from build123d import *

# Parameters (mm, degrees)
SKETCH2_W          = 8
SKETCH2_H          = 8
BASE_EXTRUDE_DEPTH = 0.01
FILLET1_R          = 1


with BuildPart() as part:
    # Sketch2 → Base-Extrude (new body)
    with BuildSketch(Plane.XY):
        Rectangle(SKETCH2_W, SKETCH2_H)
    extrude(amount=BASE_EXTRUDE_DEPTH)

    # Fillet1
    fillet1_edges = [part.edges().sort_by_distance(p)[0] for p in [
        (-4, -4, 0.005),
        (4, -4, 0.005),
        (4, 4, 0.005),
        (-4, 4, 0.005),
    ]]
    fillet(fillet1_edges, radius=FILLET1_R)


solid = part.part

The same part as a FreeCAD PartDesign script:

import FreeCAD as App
import Part
import Sketcher

V = App.Vector
Q = App.Units.Quantity


def edges_at(feature, points):
    """Names of the edges that pass closest to the given points."""
    edges = feature.Shape.Edges
    near = lambda p: min(range(len(edges)), key=lambda i: edges[i].distToShape(Part.Vertex(*p))[0])
    return sorted({f"Edge{near(p) + 1}" for p in points})


def add_polygon(sketch, points):
    """Adds a closed chain of lines whose ends are joined by coincident constraints."""
    first, n = sketch.GeometryCount, len(points)
    for a, b in zip(points, points[1:] + points[:1]):
        sketch.addGeometry(Part.LineSegment(App.Vector(*a, 0), App.Vector(*b, 0)), False)
    for i in range(n):
        sketch.addConstraint(Sketcher.Constraint("Coincident", first + i, 2, first + (i + 1) % n, 1))

doc = App.newDocument("Part")
body = doc.addObject("PartDesign::Body", "Body")

# Sketch on XY plane
sketch1 = body.newObject("Sketcher::SketchObject", "Sketch")
sketch1.AttachmentSupport = (doc.getObject("XY_Plane"), [""])
sketch1.MapMode = "FlatFace"
add_polygon(sketch1, [(-4, 4), (-4, -4), (4, -4), (4, 4)])  # lines 0-3
sketch1.addConstraint([
    Sketcher.Constraint("Vertical", 0),
    Sketcher.Constraint("Horizontal", 1),
    Sketcher.Constraint("Vertical", 2),
    Sketcher.Constraint("Horizontal", 3),
    Sketcher.Constraint("Symmetric", 0, 2, 2, 2, -1, 1),
    Sketcher.Constraint("Equal", 3, 0),
    Sketcher.Constraint("DistanceX", 1, 1, 1, 2, Q("8 mm")),
])
pad1 = body.newObject("PartDesign::Pad", "Pad")
pad1.Profile = sketch1
pad1.Length = 0.01
doc.recompute()

fillet = body.newObject("PartDesign::Fillet", "Fillet")
fillet.Base = (pad1, edges_at(pad1, [
    (-4, -4, 0.005),
    (4, -4, 0.005),
    (4, 4, 0.005),
    (-4, 4, 0.005),
]))
fillet.Radius = 1

doc.recompute()
